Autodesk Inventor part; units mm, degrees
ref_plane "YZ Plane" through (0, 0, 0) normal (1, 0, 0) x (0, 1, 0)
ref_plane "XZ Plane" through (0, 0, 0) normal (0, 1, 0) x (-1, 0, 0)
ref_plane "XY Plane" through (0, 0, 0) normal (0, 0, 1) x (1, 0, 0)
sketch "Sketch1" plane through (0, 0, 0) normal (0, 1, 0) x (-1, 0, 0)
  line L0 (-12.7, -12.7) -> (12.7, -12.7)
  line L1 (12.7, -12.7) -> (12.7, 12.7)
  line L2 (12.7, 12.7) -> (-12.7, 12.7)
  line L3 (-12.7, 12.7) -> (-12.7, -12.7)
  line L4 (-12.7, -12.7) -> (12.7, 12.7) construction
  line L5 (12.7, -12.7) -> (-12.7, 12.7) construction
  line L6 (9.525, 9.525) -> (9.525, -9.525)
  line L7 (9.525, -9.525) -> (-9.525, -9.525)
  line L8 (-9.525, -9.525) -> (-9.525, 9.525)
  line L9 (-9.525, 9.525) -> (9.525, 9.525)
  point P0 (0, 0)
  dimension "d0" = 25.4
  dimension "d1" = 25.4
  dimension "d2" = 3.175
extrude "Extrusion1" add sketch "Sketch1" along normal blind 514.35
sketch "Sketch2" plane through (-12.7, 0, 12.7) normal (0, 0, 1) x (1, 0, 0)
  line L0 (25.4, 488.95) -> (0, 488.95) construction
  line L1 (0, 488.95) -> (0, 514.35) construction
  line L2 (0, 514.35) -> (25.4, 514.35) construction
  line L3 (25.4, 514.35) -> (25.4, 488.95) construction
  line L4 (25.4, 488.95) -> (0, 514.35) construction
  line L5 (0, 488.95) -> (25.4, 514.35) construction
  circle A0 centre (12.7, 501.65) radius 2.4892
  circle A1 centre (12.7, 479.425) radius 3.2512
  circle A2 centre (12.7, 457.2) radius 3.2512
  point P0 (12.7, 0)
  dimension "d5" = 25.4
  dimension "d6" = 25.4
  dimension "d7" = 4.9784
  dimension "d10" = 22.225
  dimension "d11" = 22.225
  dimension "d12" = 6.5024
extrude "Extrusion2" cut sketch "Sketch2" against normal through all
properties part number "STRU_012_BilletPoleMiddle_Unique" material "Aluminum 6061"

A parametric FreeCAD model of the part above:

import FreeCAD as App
import Part
import Sketcher
Q = App.Units.Quantity


def add_polygon(sketch, points):
    """Adds a closed chain of lines whose ends are joined by coincident constraints."""
    first, n = sketch.GeometryCount, len(points)
    for a, b in zip(points, points[1:] + points[:1]):
        sketch.addGeometry(Part.LineSegment(App.Vector(*a, 0), App.Vector(*b, 0)), False)
    for i in range(n):
        sketch.addConstraint(Sketcher.Constraint("Coincident", first + i, 2, first + (i + 1) % n, 1))

doc = App.newDocument("Part")
body = doc.addObject("PartDesign::Body", "Body")

# Sketch on XZ plane
sketch1 = body.newObject("Sketcher::SketchObject", "Sketch")
sketch1.AttachmentSupport = (doc.getObject("XZ_Plane"), [""])
sketch1.MapMode = "FlatFace"
add_polygon(sketch1, [(13, 13), (13, -13), (-13, -13), (-13, 13)])  # lines 0-3
add_polygon(sketch1, [(10, 10), (-10, 10), (-10, -10), (10, -10)])  # lines 4-7
sketch1.addConstraint([
    Sketcher.Constraint("Vertical", 0),
    Sketcher.Constraint("Horizontal", 1),
    Sketcher.Constraint("Vertical", 2),
    Sketcher.Constraint("Horizontal", 3),
    Sketcher.Constraint("Horizontal", 4),
    Sketcher.Constraint("Vertical", 5),
    Sketcher.Constraint("Horizontal", 6),
    Sketcher.Constraint("Vertical", 7),
    Sketcher.Constraint("Symmetric", 0, 2, 2, 2, -1, 1),
    Sketcher.Constraint("Symmetric", 4, 2, 6, 2, -1, 1),
    Sketcher.Constraint("Equal", 3, 0),
    Sketcher.Constraint("Equal", 6, 5),
    Sketcher.Constraint("DistanceX", 1, 2, 1, 1, Q("1 in")),
    Sketcher.Constraint("DistanceX", 2, 2, 4, 2, Q("0.125 in")),
])
pad1 = body.newObject("PartDesign::Pad", "Pad")
pad1.Profile = sketch1
pad1.Length = Q("20.25 in")
pad1.Reversed = True

# Sketch on XY plane
sketch2 = body.newObject("Sketcher::SketchObject", "Sketch001")
sketch2.AttachmentSupport = (doc.getObject("XY_Plane"), [""])
sketch2.MapMode = "FlatFace"
sketch2.AttachmentOffset = App.Placement(App.Vector(0, 0, 0.5 * 25.4), App.Rotation())
sketch2.addGeometry([
    Part.Circle(App.Vector(0, 501.6, 0), App.Vector(0, 0, 1), 2.5),
    Part.Circle(App.Vector(0, 479.4, 0), App.Vector(0, 0, 1), 3.3),
    Part.Circle(App.Vector(0, 457.2, 0), App.Vector(0, 0, 1), 3.3),
], False)
sketch2.addConstraint([
    Sketcher.Constraint("Equal", 1, 2),
    Sketcher.Constraint("PointOnObject", 0, 3, -2),
    Sketcher.Constraint("PointOnObject", 1, 3, -2),
    Sketcher.Constraint("PointOnObject", 2, 3, -2),
    Sketcher.Constraint("Diameter", 0, Q("0.196 in")),
    Sketcher.Constraint("Diameter", 1, Q("0.256 in")),
    Sketcher.Constraint("DistanceY", -1, 1, 2, 3, Q("18 in")),
    Sketcher.Constraint("DistanceY", 1, 3, 0, 3, Q("0.875 in")),
    Sketcher.Constraint("DistanceY", 2, 3, 1, 3, Q("0.875 in")),
])
pocket1 = body.newObject("PartDesign::Pocket", "Pocket")
pocket1.Profile = sketch2
pocket1.Type = "ThroughAll"

doc.recompute()
